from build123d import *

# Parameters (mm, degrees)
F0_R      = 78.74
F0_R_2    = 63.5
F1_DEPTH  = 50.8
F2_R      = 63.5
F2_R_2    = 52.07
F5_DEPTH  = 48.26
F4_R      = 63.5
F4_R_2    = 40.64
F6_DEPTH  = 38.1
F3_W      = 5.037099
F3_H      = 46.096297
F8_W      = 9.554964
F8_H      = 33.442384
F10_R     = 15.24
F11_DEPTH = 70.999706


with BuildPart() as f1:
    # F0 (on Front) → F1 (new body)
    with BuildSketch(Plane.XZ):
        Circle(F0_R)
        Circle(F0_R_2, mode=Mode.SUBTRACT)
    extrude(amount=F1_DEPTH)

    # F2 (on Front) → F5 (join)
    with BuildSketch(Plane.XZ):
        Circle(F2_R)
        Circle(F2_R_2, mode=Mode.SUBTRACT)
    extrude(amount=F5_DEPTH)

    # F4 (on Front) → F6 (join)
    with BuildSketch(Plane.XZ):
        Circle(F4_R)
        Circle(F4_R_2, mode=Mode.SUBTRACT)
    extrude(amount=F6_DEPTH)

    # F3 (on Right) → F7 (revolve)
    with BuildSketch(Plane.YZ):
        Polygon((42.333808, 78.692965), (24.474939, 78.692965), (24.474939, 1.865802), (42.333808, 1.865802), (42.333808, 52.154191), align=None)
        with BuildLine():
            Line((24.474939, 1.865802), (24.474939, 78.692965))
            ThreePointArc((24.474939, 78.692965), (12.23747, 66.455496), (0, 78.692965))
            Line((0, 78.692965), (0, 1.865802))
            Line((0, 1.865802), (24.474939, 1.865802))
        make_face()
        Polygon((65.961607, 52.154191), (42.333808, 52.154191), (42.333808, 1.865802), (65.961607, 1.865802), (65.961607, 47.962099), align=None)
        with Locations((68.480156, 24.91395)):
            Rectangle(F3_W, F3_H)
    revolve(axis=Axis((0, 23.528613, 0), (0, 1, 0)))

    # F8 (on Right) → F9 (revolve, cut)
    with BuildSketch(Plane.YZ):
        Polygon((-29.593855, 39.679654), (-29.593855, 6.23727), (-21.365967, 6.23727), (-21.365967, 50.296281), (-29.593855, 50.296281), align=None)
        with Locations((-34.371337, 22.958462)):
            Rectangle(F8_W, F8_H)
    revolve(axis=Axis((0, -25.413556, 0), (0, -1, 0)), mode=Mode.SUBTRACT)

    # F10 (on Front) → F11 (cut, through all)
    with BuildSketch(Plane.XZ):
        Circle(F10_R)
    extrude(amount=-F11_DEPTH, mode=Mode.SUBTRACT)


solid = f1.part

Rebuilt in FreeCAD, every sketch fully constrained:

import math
import FreeCAD as App
import Part
import Sketcher
Q = App.Units.Quantity

doc = App.newDocument("Part")
params = doc.addObject("Spreadsheet::Sheet", "Params")
for row, (alias, value) in enumerate([
    ("sketch1_diameter", "5 in"),
    ("sketch1_diameter2", "6.2 in"),
    ("pad1_length", "2 in"),
    ("sketch2_diameter", "5 in"),
    ("sketch2_diameter2", "4.1 in"),
    ("pad2_length", "1.9 in"),
    ("sketch3_diameter", "5 in"),
    ("sketch3_diameter2", "3.2 in"),
    ("pad3_length", "1.5 in"),
    ("revolution_angle", "360 deg"),
    ("groove_angle", "360 deg"),
    ("sketch6_diameter", "1.2 in"),
], start=1):
    params.set(f"A{row}", alias)
    params.set(f"B{row}", "=" + value)
    params.setAlias(f"B{row}", alias)

body = doc.addObject("PartDesign::Body", "Body")

# Sketch on XZ plane
sketch1 = doc.addObject("Sketcher::SketchObject", "Sketch")
body.addObject(sketch1)
sketch1.AttachmentSupport = (doc.XZ_Plane, [""])
sketch1.MapMode = "FlatFace"
sketch1.addGeometry(Part.Circle(App.Vector(0, 0, 0), App.Vector(0, 0, 1), 79), False)
sketch1.addGeometry(Part.Circle(App.Vector(0, 0, 0), App.Vector(0, 0, 1), 64), False)
sketch1.addConstraint(Sketcher.Constraint("Coincident", 0, 3, -1, 1))
sketch1.addConstraint(Sketcher.Constraint("Coincident", 1, 3, -1, 1))
sketch1.addConstraint(Sketcher.Constraint("Diameter", 1, Q("5 in")))
sketch1.addConstraint(Sketcher.Constraint("Diameter", 0, Q("6.2 in")))
sketch1.setExpression("Constraints[2]", "Params.sketch1_diameter")
sketch1.setExpression("Constraints[3]", "Params.sketch1_diameter2")
pad1 = doc.addObject("PartDesign::Pad", "Pad")
body.addObject(pad1)
pad1.Profile = sketch1
pad1.setExpression("Length", "Params.pad1_length")

# Sketch on XZ plane
sketch2 = doc.addObject("Sketcher::SketchObject", "Sketch001")
body.addObject(sketch2)
sketch2.AttachmentSupport = (doc.XZ_Plane, [""])
sketch2.MapMode = "FlatFace"
sketch2.addGeometry(Part.Circle(App.Vector(0, 0, 0), App.Vector(0, 0, 1), 64), False)
sketch2.addGeometry(Part.Circle(App.Vector(0, 0, 0), App.Vector(0, 0, 1), 52), False)
sketch2.addConstraint(Sketcher.Constraint("Coincident", 0, 3, -1, 1))
sketch2.addConstraint(Sketcher.Constraint("Coincident", 1, 3, -1, 1))
sketch2.addConstraint(Sketcher.Constraint("Diameter", 0, Q("5 in")))
sketch2.addConstraint(Sketcher.Constraint("Diameter", 1, Q("4.1 in")))
sketch2.setExpression("Constraints[2]", "Params.sketch2_diameter")
sketch2.setExpression("Constraints[3]", "Params.sketch2_diameter2")
pad2 = doc.addObject("PartDesign::Pad", "Pad001")
body.addObject(pad2)
pad2.Profile = sketch2
pad2.setExpression("Length", "Params.pad2_length")

# Sketch on XZ plane
sketch3 = doc.addObject("Sketcher::SketchObject", "Sketch002")
body.addObject(sketch3)
sketch3.AttachmentSupport = (doc.XZ_Plane, [""])
sketch3.MapMode = "FlatFace"
sketch3.addGeometry(Part.Circle(App.Vector(0, 0, 0), App.Vector(0, 0, 1), 64), False)
sketch3.addGeometry(Part.Circle(App.Vector(0, 0, 0), App.Vector(0, 0, 1), 41), False)
sketch3.addConstraint(Sketcher.Constraint("Coincident", 0, 3, -1, 1))
sketch3.addConstraint(Sketcher.Constraint("Coincident", 1, 3, -1, 1))
sketch3.addConstraint(Sketcher.Constraint("Diameter", 0, Q("5 in")))
sketch3.addConstraint(Sketcher.Constraint("Diameter", 1, Q("3.2 in")))
sketch3.setExpression("Constraints[2]", "Params.sketch3_diameter")
sketch3.setExpression("Constraints[3]", "Params.sketch3_diameter2")
pad3 = doc.addObject("PartDesign::Pad", "Pad002")
body.addObject(pad3)
pad3.Profile = sketch3
pad3.setExpression("Length", "Params.pad3_length")

# Sketch on YZ plane
sketch4 = doc.addObject("Sketcher::SketchObject", "Sketch003")
body.addObject(sketch4)
sketch4.AttachmentSupport = (doc.YZ_Plane, [""])
sketch4.MapMode = "FlatFace"
sketch4.addGeometry(Part.LineSegment(App.Vector(42.333808, 52.154191, 0), App.Vector(42.333808, 78.692965, 0)), False)
sketch4.addGeometry(Part.LineSegment(App.Vector(42.333808, 78.692965, 0), App.Vector(24.474939, 78.692965, 0)), False)
sketch4.addGeometry(Part.ArcOfCircle(Part.Circle(App.Vector(12.237469, 78.692965, 0), App.Vector(0, 0, 1), 12.237469), math.radians(-179.999998), math.radians(-0.000002)), False)
sketch4.addGeometry(Part.LineSegment(App.Vector(0, 78.692965, 0), App.Vector(0, 1.865802, 0)), False)
sketch4.addGeometry(Part.LineSegment(App.Vector(0, 1.865802, 0), App.Vector(65.961607, 1.865802, 0)), False)
sketch4.addGeometry(Part.LineSegment(App.Vector(65.961607, 1.865801, 0), App.Vector(65.961607, 1.865802, 0)), False)
sketch4.addGeometry(Part.LineSegment(App.Vector(65.961607, 1.865801, 0), App.Vector(70.998705, 1.865801, 0)), False)
sketch4.addGeometry(Part.LineSegment(App.Vector(70.998705, 1.865801, 0), App.Vector(70.998705, 47.962099, 0)), False)
sketch4.addGeometry(Part.LineSegment(App.Vector(70.998705, 47.962099, 0), App.Vector(65.961607, 47.962099, 0)), False)
sketch4.addGeometry(Part.LineSegment(App.Vector(65.961607, 47.962099, 0), App.Vector(65.961607, 52.154191, 0)), False)
sketch4.addGeometry(Part.LineSegment(App.Vector(65.961607, 52.154191, 0), App.Vector(42.333808, 52.154191, 0)), False)
sketch4.addConstraint(Sketcher.Constraint("Coincident", 0, 2, 1, 1))
sketch4.addConstraint(Sketcher.Constraint("Coincident", 1, 2, 2, 2))
sketch4.addConstraint(Sketcher.Constraint("Tangent", 2, 1, 3, 1))
sketch4.addConstraint(Sketcher.Constraint("Coincident", 3, 2, 4, 1))
sketch4.addConstraint(Sketcher.Constraint("Coincident", 4, 2, 5, 1))
sketch4.addConstraint(Sketcher.Constraint("Coincident", 5, 2, 6, 1))
sketch4.addConstraint(Sketcher.Constraint("Coincident", 6, 2, 7, 1))
sketch4.addConstraint(Sketcher.Constraint("Coincident", 7, 2, 8, 1))
sketch4.addConstraint(Sketcher.Constraint("Coincident", 8, 2, 9, 1))
sketch4.addConstraint(Sketcher.Constraint("Coincident", 9, 2, 10, 1))
sketch4.addConstraint(Sketcher.Constraint("Coincident", 10, 2, 0, 1))
sketch4.addConstraint(Sketcher.Constraint("Vertical", 0))
sketch4.addConstraint(Sketcher.Constraint("Horizontal", 1))
sketch4.addConstraint(Sketcher.Constraint("Vertical", 3))
sketch4.addConstraint(Sketcher.Constraint("Horizontal", 4))
sketch4.addConstraint(Sketcher.Constraint("Horizontal", 5))
sketch4.addConstraint(Sketcher.Constraint("Horizontal", 6))
sketch4.addConstraint(Sketcher.Constraint("Vertical", 7))
sketch4.addConstraint(Sketcher.Constraint("Horizontal", 8))
sketch4.addConstraint(Sketcher.Constraint("Vertical", 9))
sketch4.addConstraint(Sketcher.Constraint("Horizontal", 10))
sketch4.addConstraint(Sketcher.Constraint("PointOnObject", 2, 1, -2))
sketch4.addConstraint(Sketcher.Constraint("Horizontal", 2, 3, 0, 2))
sketch4.addConstraint(Sketcher.Constraint("Vertical", 5, 2, 8, 2))
sketch4.addConstraint(Sketcher.Constraint("Radius", 2, Q("12.237469 mm")))
sketch4.addConstraint(Sketcher.Constraint("DistanceX", 6, 1, 6, 2, Q("5.037099 mm")))
sketch4.addConstraint(Sketcher.Constraint("DistanceX", 10, 2, 10, 1, Q("23.627799 mm")))
sketch4.addConstraint(Sketcher.Constraint("DistanceX", 1, 2, 1, 1, Q("17.858869 mm")))
sketch4.addConstraint(Sketcher.Constraint("DistanceY", -1, 1, 6, 2, Q("1.865801 mm")))
sketch4.addConstraint(Sketcher.Constraint("DistanceY", -1, 1, 7, 2, Q("47.962099 mm")))
sketch4.addConstraint(Sketcher.Constraint("DistanceX", 0, 2, 4, 2, Q("23.627799 mm")))
sketch4.addConstraint(Sketcher.Constraint("DistanceY", 0, 1, 0, 2, Q("26.538774 mm")))
sketch4.addConstraint(Sketcher.Constraint("DistanceY", 3, 2, 3, 1, Q("76.827163 mm")))
revolution = doc.addObject("PartDesign::Revolution", "Revolution")
body.addObject(revolution)
revolution.Profile = sketch4
revolution.ReferenceAxis = (sketch4, ["H_Axis"])
revolution.setExpression("Angle", "Params.revolution_angle")

# Sketch on YZ plane
sketch5 = doc.addObject("Sketcher::SketchObject", "Sketch004")
body.addObject(sketch5)
sketch5.AttachmentSupport = (doc.YZ_Plane, [""])
sketch5.MapMode = "FlatFace"
sketch5.addGeometry(Part.LineSegment(App.Vector(-21, 6, 0), App.Vector(-21, 50, 0)), False)
sketch5.addGeometry(Part.LineSegment(App.Vector(-21, 50, 0), App.Vector(-30, 50, 0)), False)
sketch5.addGeometry(Part.LineSegment(App.Vector(-30, 50, 0), App.Vector(-30, 40, 0)), False)
sketch5.addGeometry(Part.LineSegment(App.Vector(-30, 40, 0), App.Vector(-39, 40, 0)), False)
sketch5.addGeometry(Part.LineSegment(App.Vector(-39, 40, 0), App.Vector(-39, 6, 0)), False)
sketch5.addGeometry(Part.LineSegment(App.Vector(-39, 6, 0), App.Vector(-21, 6, 0)), False)
sketch5.addConstraint(Sketcher.Constraint("Coincident", 0, 2, 1, 1))
sketch5.addConstraint(Sketcher.Constraint("Coincident", 1, 2, 2, 1))
sketch5.addConstraint(Sketcher.Constraint("Coincident", 2, 2, 3, 1))
sketch5.addConstraint(Sketcher.Constraint("Coincident", 3, 2, 4, 1))
sketch5.addConstraint(Sketcher.Constraint("Coincident", 4, 2, 5, 1))
sketch5.addConstraint(Sketcher.Constraint("Coincident", 5, 2, 0, 1))
sketch5.addConstraint(Sketcher.Constraint("Vertical", 0))
sketch5.addConstraint(Sketcher.Constraint("Horizontal", 1))
sketch5.addConstraint(Sketcher.Constraint("Vertical", 2))
sketch5.addConstraint(Sketcher.Constraint("Horizontal", 3))
sketch5.addConstraint(Sketcher.Constraint("Vertical", 4))
sketch5.addConstraint(Sketcher.Constraint("Horizontal", 5))
sketch5.addConstraint(Sketcher.Constraint("DistanceY", 0, 1, 0, 2, Q("44.059011 mm")))
sketch5.addConstraint(Sketcher.Constraint("DistanceX", 1, 2, 1, 1, Q("8.227888 mm")))
sketch5.addConstraint(Sketcher.Constraint("DistanceX", 3, 2, 3, 1, Q("9.554964 mm")))
sketch5.addConstraint(Sketcher.Constraint("DistanceY", 2, 2, 2, 1, Q("10.616627 mm")))
sketch5.addConstraint(Sketcher.Constraint("DistanceY", -1, 1, 0, 2, Q("50.296281 mm")))
sketch5.addConstraint(Sketcher.Constraint("DistanceX", 3, 2, -1, 1, Q("39.148819 mm")))
groove = doc.addObject("PartDesign::Groove", "Groove")
body.addObject(groove)
groove.Profile = sketch5
groove.ReferenceAxis = (sketch5, ["H_Axis"])
groove.setExpression("Angle", "Params.groove_angle")

# Sketch on XZ plane
sketch6 = doc.addObject("Sketcher::SketchObject", "Sketch005")
body.addObject(sketch6)
sketch6.AttachmentSupport = (doc.XZ_Plane, [""])
sketch6.MapMode = "FlatFace"
sketch6.addGeometry(Part.Circle(App.Vector(0, 0, 0), App.Vector(0, 0, 1), 15), False)
sketch6.addConstraint(Sketcher.Constraint("Coincident", 0, 3, -1, 1))
sketch6.addConstraint(Sketcher.Constraint("Diameter", 0, Q("1.2 in")))
sketch6.setExpression("Constraints[1]", "Params.sketch6_diameter")
pocket1 = doc.addObject("PartDesign::Pocket", "Pocket")
body.addObject(pocket1)
pocket1.Profile = sketch6
pocket1.Type = "ThroughAll"

doc.recompute()
